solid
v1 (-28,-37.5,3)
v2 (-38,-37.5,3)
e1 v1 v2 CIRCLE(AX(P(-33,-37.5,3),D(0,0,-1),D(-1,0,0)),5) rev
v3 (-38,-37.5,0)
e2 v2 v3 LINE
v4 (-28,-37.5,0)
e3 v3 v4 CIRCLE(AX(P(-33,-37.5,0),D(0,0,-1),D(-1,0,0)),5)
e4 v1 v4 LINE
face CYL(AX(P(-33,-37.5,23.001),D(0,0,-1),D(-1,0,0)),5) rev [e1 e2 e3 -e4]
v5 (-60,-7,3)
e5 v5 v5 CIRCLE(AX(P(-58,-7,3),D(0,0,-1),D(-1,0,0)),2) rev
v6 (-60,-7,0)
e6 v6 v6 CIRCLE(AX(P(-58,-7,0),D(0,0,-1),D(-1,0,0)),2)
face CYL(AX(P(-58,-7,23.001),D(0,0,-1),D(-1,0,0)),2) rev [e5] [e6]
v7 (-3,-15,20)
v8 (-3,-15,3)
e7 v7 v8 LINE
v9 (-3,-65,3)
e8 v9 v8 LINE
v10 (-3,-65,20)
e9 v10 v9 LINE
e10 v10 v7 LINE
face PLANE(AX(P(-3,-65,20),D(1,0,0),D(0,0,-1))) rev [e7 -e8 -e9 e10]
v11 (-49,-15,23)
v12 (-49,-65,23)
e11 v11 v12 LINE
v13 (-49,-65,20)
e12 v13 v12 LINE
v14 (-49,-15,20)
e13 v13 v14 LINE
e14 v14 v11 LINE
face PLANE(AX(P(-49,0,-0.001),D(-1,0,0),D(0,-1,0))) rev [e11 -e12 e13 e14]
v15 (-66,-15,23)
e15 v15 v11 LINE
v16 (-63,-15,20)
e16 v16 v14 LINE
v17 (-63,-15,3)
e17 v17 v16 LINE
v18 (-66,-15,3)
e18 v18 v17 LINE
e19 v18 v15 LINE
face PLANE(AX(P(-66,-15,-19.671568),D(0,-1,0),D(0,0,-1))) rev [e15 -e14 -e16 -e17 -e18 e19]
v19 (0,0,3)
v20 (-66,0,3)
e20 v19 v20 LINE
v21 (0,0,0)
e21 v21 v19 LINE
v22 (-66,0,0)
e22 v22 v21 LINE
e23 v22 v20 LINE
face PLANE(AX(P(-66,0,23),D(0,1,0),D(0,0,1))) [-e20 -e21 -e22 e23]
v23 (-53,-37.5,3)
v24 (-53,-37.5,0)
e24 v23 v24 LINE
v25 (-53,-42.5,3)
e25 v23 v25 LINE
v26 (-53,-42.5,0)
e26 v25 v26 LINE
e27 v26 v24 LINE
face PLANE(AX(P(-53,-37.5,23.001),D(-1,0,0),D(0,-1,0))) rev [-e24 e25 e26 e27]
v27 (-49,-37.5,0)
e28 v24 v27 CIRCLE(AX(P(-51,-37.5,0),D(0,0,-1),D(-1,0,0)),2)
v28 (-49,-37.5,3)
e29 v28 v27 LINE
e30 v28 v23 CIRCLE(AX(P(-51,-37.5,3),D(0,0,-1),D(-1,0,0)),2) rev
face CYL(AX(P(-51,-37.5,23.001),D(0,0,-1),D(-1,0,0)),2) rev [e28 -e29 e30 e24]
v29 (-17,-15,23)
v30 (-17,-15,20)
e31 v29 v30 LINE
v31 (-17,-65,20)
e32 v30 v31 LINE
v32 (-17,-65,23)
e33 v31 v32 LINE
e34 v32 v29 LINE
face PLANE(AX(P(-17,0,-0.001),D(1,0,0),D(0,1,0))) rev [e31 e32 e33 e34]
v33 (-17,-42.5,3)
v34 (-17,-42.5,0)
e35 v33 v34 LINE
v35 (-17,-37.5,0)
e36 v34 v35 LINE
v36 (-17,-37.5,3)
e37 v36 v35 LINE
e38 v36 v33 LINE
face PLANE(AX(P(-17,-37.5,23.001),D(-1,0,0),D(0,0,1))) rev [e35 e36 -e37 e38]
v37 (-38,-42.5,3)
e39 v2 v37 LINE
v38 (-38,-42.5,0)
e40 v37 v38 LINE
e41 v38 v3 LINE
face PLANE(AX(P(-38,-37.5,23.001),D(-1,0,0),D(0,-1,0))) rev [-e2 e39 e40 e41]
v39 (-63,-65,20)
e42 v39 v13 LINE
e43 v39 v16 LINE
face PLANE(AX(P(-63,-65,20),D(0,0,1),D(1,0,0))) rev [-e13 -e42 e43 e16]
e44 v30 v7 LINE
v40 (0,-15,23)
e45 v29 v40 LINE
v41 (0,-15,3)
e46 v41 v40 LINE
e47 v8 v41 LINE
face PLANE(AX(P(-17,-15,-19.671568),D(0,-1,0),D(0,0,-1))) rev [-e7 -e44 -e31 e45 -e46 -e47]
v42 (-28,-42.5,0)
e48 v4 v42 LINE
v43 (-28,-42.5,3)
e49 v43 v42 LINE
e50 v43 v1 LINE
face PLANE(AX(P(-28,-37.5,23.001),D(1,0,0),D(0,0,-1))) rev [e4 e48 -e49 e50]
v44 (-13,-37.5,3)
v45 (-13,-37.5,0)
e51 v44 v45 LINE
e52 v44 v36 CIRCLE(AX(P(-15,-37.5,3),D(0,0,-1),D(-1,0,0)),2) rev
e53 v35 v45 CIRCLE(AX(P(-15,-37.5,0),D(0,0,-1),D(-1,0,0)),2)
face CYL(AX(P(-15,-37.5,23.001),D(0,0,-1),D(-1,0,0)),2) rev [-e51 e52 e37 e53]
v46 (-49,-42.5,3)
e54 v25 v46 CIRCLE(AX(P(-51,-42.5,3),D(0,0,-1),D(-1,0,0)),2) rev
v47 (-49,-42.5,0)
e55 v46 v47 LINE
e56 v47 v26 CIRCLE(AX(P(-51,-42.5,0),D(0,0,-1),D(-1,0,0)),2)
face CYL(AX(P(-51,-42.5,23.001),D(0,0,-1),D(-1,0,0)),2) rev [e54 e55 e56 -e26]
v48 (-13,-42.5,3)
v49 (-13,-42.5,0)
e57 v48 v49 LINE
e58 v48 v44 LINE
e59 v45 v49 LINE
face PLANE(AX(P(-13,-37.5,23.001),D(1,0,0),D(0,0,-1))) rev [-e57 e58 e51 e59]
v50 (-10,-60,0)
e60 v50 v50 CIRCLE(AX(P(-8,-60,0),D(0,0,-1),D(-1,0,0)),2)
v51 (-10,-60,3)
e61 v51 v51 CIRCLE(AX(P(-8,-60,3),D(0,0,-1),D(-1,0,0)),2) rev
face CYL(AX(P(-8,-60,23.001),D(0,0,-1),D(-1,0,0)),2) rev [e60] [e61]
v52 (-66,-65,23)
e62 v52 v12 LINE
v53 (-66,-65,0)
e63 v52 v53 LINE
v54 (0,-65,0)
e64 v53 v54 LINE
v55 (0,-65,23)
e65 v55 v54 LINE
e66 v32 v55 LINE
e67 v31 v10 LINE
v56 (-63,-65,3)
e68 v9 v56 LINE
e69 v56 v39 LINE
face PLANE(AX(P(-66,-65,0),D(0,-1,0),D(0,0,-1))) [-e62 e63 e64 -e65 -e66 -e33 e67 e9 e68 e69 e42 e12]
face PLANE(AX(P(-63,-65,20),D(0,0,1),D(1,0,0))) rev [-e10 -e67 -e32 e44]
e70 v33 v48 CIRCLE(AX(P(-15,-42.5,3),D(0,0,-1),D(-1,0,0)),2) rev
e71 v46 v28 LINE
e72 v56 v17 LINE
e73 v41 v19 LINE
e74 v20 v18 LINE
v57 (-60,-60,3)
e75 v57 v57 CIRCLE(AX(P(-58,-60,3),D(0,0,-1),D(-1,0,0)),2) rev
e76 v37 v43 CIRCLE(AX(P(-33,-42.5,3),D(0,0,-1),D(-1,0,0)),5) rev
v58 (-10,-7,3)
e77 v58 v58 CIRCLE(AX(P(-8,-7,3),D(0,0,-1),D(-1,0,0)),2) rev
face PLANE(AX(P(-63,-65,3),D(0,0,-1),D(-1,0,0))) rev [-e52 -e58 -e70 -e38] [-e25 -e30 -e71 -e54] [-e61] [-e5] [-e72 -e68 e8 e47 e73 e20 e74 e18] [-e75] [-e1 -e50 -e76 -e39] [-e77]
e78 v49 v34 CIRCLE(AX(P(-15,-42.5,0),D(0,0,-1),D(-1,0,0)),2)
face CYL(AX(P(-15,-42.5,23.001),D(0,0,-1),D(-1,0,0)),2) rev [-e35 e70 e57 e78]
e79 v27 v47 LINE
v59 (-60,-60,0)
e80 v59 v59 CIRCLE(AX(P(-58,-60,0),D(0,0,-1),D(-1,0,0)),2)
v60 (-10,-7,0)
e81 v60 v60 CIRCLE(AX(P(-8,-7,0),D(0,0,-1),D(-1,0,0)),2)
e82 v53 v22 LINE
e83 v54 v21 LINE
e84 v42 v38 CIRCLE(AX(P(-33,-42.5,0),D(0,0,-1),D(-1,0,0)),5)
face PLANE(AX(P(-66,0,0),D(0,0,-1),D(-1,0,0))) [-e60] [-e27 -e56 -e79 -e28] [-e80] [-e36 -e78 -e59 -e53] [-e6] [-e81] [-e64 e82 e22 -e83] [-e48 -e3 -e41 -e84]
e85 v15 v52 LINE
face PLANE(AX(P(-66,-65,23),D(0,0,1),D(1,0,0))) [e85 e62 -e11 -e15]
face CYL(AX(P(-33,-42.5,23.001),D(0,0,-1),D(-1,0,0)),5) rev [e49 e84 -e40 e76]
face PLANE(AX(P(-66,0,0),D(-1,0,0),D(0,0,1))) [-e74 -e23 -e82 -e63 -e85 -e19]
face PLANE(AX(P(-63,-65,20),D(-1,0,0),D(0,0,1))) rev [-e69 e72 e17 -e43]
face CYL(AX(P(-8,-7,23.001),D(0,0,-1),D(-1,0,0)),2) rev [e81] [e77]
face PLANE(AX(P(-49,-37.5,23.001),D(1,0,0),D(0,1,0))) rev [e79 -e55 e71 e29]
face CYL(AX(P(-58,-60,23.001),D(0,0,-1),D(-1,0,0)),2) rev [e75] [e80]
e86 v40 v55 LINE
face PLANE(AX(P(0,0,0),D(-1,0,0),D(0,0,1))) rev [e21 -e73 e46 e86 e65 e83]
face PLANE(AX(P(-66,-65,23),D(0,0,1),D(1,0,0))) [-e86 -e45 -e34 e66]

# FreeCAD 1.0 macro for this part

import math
import FreeCAD as App
import Part
import Sketcher
from FreeCAD import Vector

doc = App.newDocument("Part")
body = doc.addObject("PartDesign::Body", "Body")

# Sketch on YZ plane
sketch1 = doc.addObject("Sketcher::SketchObject", "Sketch")
body.addObject(sketch1)
sketch1.AttachmentSupport = (doc.YZ_Plane, [""])
sketch1.MapMode = "FlatFace"
sketch1.addGeometry([
    Part.LineSegment(Vector(0, 23, 0), Vector(-65, 23, 0)),
    Part.LineSegment(Vector(-65, 23, 0), Vector(-65, 0, 0)),
    Part.LineSegment(Vector(-65, 0, 0), Vector(0, 0, 0)),
    Part.LineSegment(Vector(0, 0, 0), Vector(0, 23, 0)),
], False)
sketch1.addConstraint([
    Sketcher.Constraint("Coincident", 0, 2, 1, 1),
    Sketcher.Constraint("Coincident", 1, 2, 2, 1),
    Sketcher.Constraint("Coincident", 2, 2, 3, 1),
    Sketcher.Constraint("Coincident", 3, 2, 0, 1),
    Sketcher.Constraint("Horizontal", 0),
    Sketcher.Constraint("Vertical", 1),
    Sketcher.Constraint("Horizontal", 2),
    Sketcher.Constraint("Vertical", 3),
    Sketcher.Constraint("Coincident", 2, 2, -1, 1),
    Sketcher.Constraint("DistanceX", 0, 2, 0, 1, 65.0),
    Sketcher.Constraint("DistanceY", 1, 2, 1, 1, 23.0),
])
pad1 = doc.addObject("PartDesign::Pad", "Pad")
body.addObject(pad1)
pad1.Profile = sketch1
pad1.Length = 66
pad1.Reversed = True

# Sketch on XZ plane
sketch2 = doc.addObject("Sketcher::SketchObject", "Sketch001")
body.addObject(sketch2)
sketch2.AttachmentSupport = (doc.XZ_Plane, [""])
sketch2.MapMode = "FlatFace"
sketch2.addGeometry([
    Part.LineSegment(Vector(-63, 3, 0), Vector(-63, 20, 0)),
    Part.LineSegment(Vector(-63, 20, 0), Vector(-3, 20, 0)),
    Part.LineSegment(Vector(-3, 20, 0), Vector(-3, 3, 0)),
    Part.LineSegment(Vector(-3, 3, 0), Vector(-63, 3, 0)),
], False)
sketch2.addConstraint([
    Sketcher.Constraint("Coincident", 0, 2, 1, 1),
    Sketcher.Constraint("Coincident", 1, 2, 2, 1),
    Sketcher.Constraint("Coincident", 2, 2, 3, 1),
    Sketcher.Constraint("Coincident", 3, 2, 0, 1),
    Sketcher.Constraint("Vertical", 0),
    Sketcher.Constraint("Horizontal", 1),
    Sketcher.Constraint("Vertical", 2),
    Sketcher.Constraint("Horizontal", 3),
    Sketcher.Constraint("DistanceX", 1, 1, 1, 2, 60.0),
    Sketcher.Constraint("DistanceY", 0, 1, 0, 2, 17.0),
    Sketcher.Constraint("DistanceX", 0, 2, -1, 1, 63.0),
    Sketcher.Constraint("DistanceY", -1, 1, 0, 2, 20.0),
])
pocket1 = doc.addObject("PartDesign::Pocket", "Pocket")
body.addObject(pocket1)
pocket1.Profile = sketch2
pocket1.Type = "ThroughAll"
pocket1.Reversed = True

# Sketch on XY plane
sketch3 = doc.addObject("Sketcher::SketchObject", "Sketch002")
body.addObject(sketch3)
sketch3.AttachmentSupport = (doc.XY_Plane, [""])
sketch3.MapMode = "FlatFace"
sketch3.AttachmentOffset = App.Placement(Vector(0, 0, 23), App.Rotation())
sketch3.addGeometry([
    Part.LineSegment(Vector(-49, 0, 0), Vector(-49, -65, 0)),
    Part.LineSegment(Vector(-49, -65, 0), Vector(-17, -65, 0)),
    Part.LineSegment(Vector(-17, -65, 0), Vector(-17, 0, 0)),
    Part.LineSegment(Vector(-17, 0, 0), Vector(-49, 0, 0)),
], False)
sketch3.addConstraint([
    Sketcher.Constraint("Coincident", 0, 2, 1, 1),
    Sketcher.Constraint("Coincident", 1, 2, 2, 1),
    Sketcher.Constraint("Coincident", 2, 2, 3, 1),
    Sketcher.Constraint("Coincident", 3, 2, 0, 1),
    Sketcher.Constraint("Vertical", 0),
    Sketcher.Constraint("Horizontal", 1),
    Sketcher.Constraint("Vertical", 2),
    Sketcher.Constraint("Horizontal", 3),
    Sketcher.Constraint("PointOnObject", 2, 2, -1),
    Sketcher.Constraint("DistanceX", 1, 1, 1, 2, 32.0),
    Sketcher.Constraint("DistanceY", 0, 2, 0, 1, 65.0),
    Sketcher.Constraint("DistanceX", 0, 2, -1, 1, 49.0),
])
pocket2 = doc.addObject("PartDesign::Pocket", "Pocket001")
body.addObject(pocket2)
pocket2.Profile = sketch3
pocket2.Type = "UpToFirst"

# Sketch on XY plane
sketch4 = doc.addObject("Sketcher::SketchObject", "Sketch003")
body.addObject(sketch4)
sketch4.AttachmentSupport = (doc.XY_Plane, [""])
sketch4.MapMode = "FlatFace"
sketch4.addGeometry(Part.Circle(Vector(-8, -7, 0), Vector(0, 0, 1), 2), False)
sketch4.addConstraint([
    Sketcher.Constraint("Diameter", 0, 4.0),
    Sketcher.Constraint("DistanceX", 0, 3, -1, 1, 8.0),
    Sketcher.Constraint("DistanceY", 0, 3, -1, 1, 7.0),
])
pocket3 = doc.addObject("PartDesign::Pocket", "Pocket002")
body.addObject(pocket3)
pocket3.Profile = sketch4
pocket3.Type = "UpToFirst"
pocket3.Reversed = True

# Sketch on XY plane
sketch5 = doc.addObject("Sketcher::SketchObject", "Sketch004")
body.addObject(sketch5)
sketch5.AttachmentSupport = (doc.XY_Plane, [""])
sketch5.MapMode = "FlatFace"
sketch5.addGeometry(Part.Circle(Vector(-58, -7, 0), Vector(0, 0, 1), 2), False)
sketch5.addConstraint([
    Sketcher.Constraint("Diameter", 0, 4.0),
    Sketcher.Constraint("DistanceX", 0, 3, -1, 1, 58.0),
    Sketcher.Constraint("DistanceY", 0, 3, -1, 1, 7.0),
])
pocket4 = doc.addObject("PartDesign::Pocket", "Pocket003")
body.addObject(pocket4)
pocket4.Profile = sketch5
pocket4.Type = "UpToFirst"
pocket4.Reversed = True

# Sketch on XY plane
sketch6 = doc.addObject("Sketcher::SketchObject", "Sketch005")
body.addObject(sketch6)
sketch6.AttachmentSupport = (doc.XY_Plane, [""])
sketch6.MapMode = "FlatFace"
sketch6.addGeometry(Part.Circle(Vector(-8, -60, 0), Vector(0, 0, 1), 2), False)
sketch6.addConstraint([
    Sketcher.Constraint("Diameter", 0, 4.0),
    Sketcher.Constraint("DistanceX", 0, 3, -1, 1, 8.0),
    Sketcher.Constraint("DistanceY", 0, 3, -1, 1, 60.0),
])
pocket5 = doc.addObject("PartDesign::Pocket", "Pocket004")
body.addObject(pocket5)
pocket5.Profile = sketch6
pocket5.Type = "UpToFirst"
pocket5.Reversed = True

# Sketch on XY plane
sketch7 = doc.addObject("Sketcher::SketchObject", "Sketch006")
body.addObject(sketch7)
sketch7.AttachmentSupport = (doc.XY_Plane, [""])
sketch7.MapMode = "FlatFace"
sketch7.addGeometry(Part.Circle(Vector(-58, -60, 0), Vector(0, 0, 1), 2), False)
sketch7.addConstraint([
    Sketcher.Constraint("Diameter", 0, 4.0),
    Sketcher.Constraint("DistanceX", 0, 3, -1, 1, 58.0),
    Sketcher.Constraint("DistanceY", 0, 3, -1, 1, 60.0),
])
pocket6 = doc.addObject("PartDesign::Pocket", "Pocket005")
body.addObject(pocket6)
pocket6.Profile = sketch7
pocket6.Type = "UpToFirst"
pocket6.Reversed = True

# Sketch on XY plane
sketch8 = doc.addObject("Sketcher::SketchObject", "Sketch007")
body.addObject(sketch8)
sketch8.AttachmentSupport = (doc.XY_Plane, [""])
sketch8.MapMode = "FlatFace"
sketch8.addGeometry([
    Part.LineSegment(Vector(-38, -42, 0), Vector(-38, -38, 0)),
    Part.ArcOfCircle(Part.Circle(Vector(-33, -38, 0), Vector(0, 0, 1), 5), math.radians(0), math.radians(180)),
    Part.LineSegment(Vector(-28, -38, 0), Vector(-28, -42, 0)),
    Part.ArcOfCircle(Part.Circle(Vector(-33, -42, 0), Vector(0, 0, 1), 5), math.radians(180), math.radians(360)),
], False)
sketch8.addConstraint([
    Sketcher.Constraint("Tangent", 0, 2, 1, 2),
    Sketcher.Constraint("Tangent", 1, 1, 2, 1),
    Sketcher.Constraint("Tangent", 2, 2, 3, 2),
    Sketcher.Constraint("Tangent", 3, 1, 0, 1),
    Sketcher.Constraint("Vertical", 0),
    Sketcher.Constraint("Vertical", 2),
    Sketcher.Constraint("Radius", 1, 5.0),
    Sketcher.Constraint("DistanceY", 0, 1, 0, 2, 5.0),
    Sketcher.Constraint("DistanceX", 1, 3, -1, 1, 33.0),
    Sketcher.Constraint("DistanceY", 1, 3, -1, 1, 37.5),
])
pocket7 = doc.addObject("PartDesign::Pocket", "Pocket006")
body.addObject(pocket7)
pocket7.Profile = sketch8
pocket7.Type = "UpToFirst"
pocket7.Reversed = True

# Sketch on XY plane
sketch9 = doc.addObject("Sketcher::SketchObject", "Sketch008")
body.addObject(sketch9)
sketch9.AttachmentSupport = (doc.XY_Plane, [""])
sketch9.MapMode = "FlatFace"
sketch9.addGeometry([
    Part.LineSegment(Vector(-17, -42.5, 0), Vector(-17, -37.5, 0)),
    Part.ArcOfCircle(Part.Circle(Vector(-15, -37.5, 0), Vector(0, 0, 1), 2), math.radians(0), math.radians(180)),
    Part.LineSegment(Vector(-13, -37.5, 0), Vector(-13, -42.5, 0)),
    Part.ArcOfCircle(Part.Circle(Vector(-15, -42.5, 0), Vector(0, 0, 1), 2), math.radians(180), math.radians(360)),
], False)
sketch9.addConstraint([
    Sketcher.Constraint("Tangent", 0, 2, 1, 2),
    Sketcher.Constraint("Tangent", 1, 1, 2, 1),
    Sketcher.Constraint("Tangent", 2, 2, 3, 2),
    Sketcher.Constraint("Tangent", 3, 1, 0, 1),
    Sketcher.Constraint("Vertical", 0),
    Sketcher.Constraint("Vertical", 2),
    Sketcher.Constraint("Radius", 1, 2.0),
    Sketcher.Constraint("DistanceY", 0, 1, 0, 2, 5.0),
    Sketcher.Constraint("DistanceX", 1, 3, -1, 1, 15.0),
    Sketcher.Constraint("DistanceY", 1, 3, -1, 1, 37.5),
])
pocket8 = doc.addObject("PartDesign::Pocket", "Pocket007")
body.addObject(pocket8)
pocket8.Profile = sketch9
pocket8.Type = "UpToFirst"
pocket8.Reversed = True

# Sketch on XY plane
sketch10 = doc.addObject("Sketcher::SketchObject", "Sketch009")
body.addObject(sketch10)
sketch10.AttachmentSupport = (doc.XY_Plane, [""])
sketch10.MapMode = "FlatFace"
sketch10.addGeometry([
    Part.LineSegment(Vector(-53, -42.5, 0), Vector(-53, -37.5, 0)),
    Part.ArcOfCircle(Part.Circle(Vector(-51, -37.5, 0), Vector(0, 0, 1), 2), math.radians(0), math.radians(180)),
    Part.LineSegment(Vector(-49, -37.5, 0), Vector(-49, -42.5, 0)),
    Part.ArcOfCircle(Part.Circle(Vector(-51, -42.5, 0), Vector(0, 0, 1), 2), math.radians(180), math.radians(360)),
], False)
sketch10.addConstraint([
    Sketcher.Constraint("Tangent", 0, 2, 1, 2),
    Sketcher.Constraint("Tangent", 1, 1, 2, 1),
    Sketcher.Constraint("Tangent", 2, 2, 3, 2),
    Sketcher.Constraint("Tangent", 3, 1, 0, 1),
    Sketcher.Constraint("Vertical", 0),
    Sketcher.Constraint("Vertical", 2),
    Sketcher.Constraint("Radius", 1, 2.0),
    Sketcher.Constraint("DistanceY", 0, 1, 0, 2, 5.0),
    Sketcher.Constraint("DistanceX", 1, 3, -1, 1, 51.0),
    Sketcher.Constraint("DistanceY", 1, 3, -1, 1, 37.5),
])
pocket9 = doc.addObject("PartDesign::Pocket", "Pocket008")
body.addObject(pocket9)
pocket9.Profile = sketch10
pocket9.Type = "UpToFirst"
pocket9.Reversed = True

# Sketch on XY plane
sketch11 = doc.addObject("Sketcher::SketchObject", "Sketch010")
body.addObject(sketch11)
sketch11.AttachmentSupport = (doc.XY_Plane, [""])
sketch11.MapMode = "FlatFace"
sketch11.AttachmentOffset = App.Placement(Vector(0, 0, 23), App.Rotation())
sketch11.addGeometry([
    Part.LineSegment(Vector(-66, 0, 0), Vector(-66, -15, 0)),  # 0
    Part.LineSegment(Vector(-66, -15, 0), Vector(-49, -15, 0)),  # 1
    Part.LineSegment(Vector(-49, -15, 0), Vector(-49, 0, 0)),  # 2
    Part.LineSegment(Vector(-49, 0, 0), Vector(-66, 0, 0)),  # 3
    Part.LineSegment(Vector(-17, 0, 0), Vector(-17, -15, 0)),  # 4
    Part.LineSegment(Vector(-17, -15, 0), Vector(0, -15, 0)),  # 5
    Part.LineSegment(Vector(0, -15, 0), Vector(0, 0, 0)),  # 6
    Part.LineSegment(Vector(0, 0, 0), Vector(-17, 0, 0)),  # 7
], False)
sketch11.addConstraint([
    Sketcher.Constraint("Coincident", 0, 2, 1, 1),
    Sketcher.Constraint("Coincident", 1, 2, 2, 1),
    Sketcher.Constraint("Coincident", 2, 2, 3, 1),
    Sketcher.Constraint("Coincident", 3, 2, 0, 1),
    Sketcher.Constraint("Coincident", 4, 2, 5, 1),
    Sketcher.Constraint("Coincident", 5, 2, 6, 1),
    Sketcher.Constraint("Coincident", 6, 2, 7, 1),
    Sketcher.Constraint("Coincident", 7, 2, 4, 1),
    Sketcher.Constraint("Vertical", 0),
    Sketcher.Constraint("Horizontal", 1),
    Sketcher.Constraint("Vertical", 2),
    Sketcher.Constraint("Horizontal", 3),
    Sketcher.Constraint("Vertical", 4),
    Sketcher.Constraint("Horizontal", 5),
    Sketcher.Constraint("Vertical", 6),
    Sketcher.Constraint("Horizontal", 7),
    Sketcher.Constraint("Coincident", 6, 2, -1, 1),
    Sketcher.Constraint("PointOnObject", 2, 2, -1),
    Sketcher.Constraint("Horizontal", 1, 2, 4, 2),
    Sketcher.Constraint("Equal", 3, 5),
    Sketcher.Constraint("DistanceX", 1, 1, 1, 2, 17.0),
    Sketcher.Constraint("DistanceY", 0, 2, 0, 1, 15.0),
    Sketcher.Constraint("DistanceX", 0, 2, -1, 1, 66.0),
])
pocket10 = doc.addObject("PartDesign::Pocket", "Pocket009")
body.addObject(pocket10)
pocket10.Profile = sketch11
pocket10.Length = 20

doc.recompute()
